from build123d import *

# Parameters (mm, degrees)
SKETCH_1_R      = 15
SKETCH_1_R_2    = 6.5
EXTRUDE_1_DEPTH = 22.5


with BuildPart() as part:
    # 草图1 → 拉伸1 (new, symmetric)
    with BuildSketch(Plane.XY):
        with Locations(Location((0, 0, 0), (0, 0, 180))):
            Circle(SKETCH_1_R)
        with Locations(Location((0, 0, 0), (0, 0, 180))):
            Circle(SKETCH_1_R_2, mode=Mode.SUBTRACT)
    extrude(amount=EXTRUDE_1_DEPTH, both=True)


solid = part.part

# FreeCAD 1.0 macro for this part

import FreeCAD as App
import Part
import Sketcher

V = App.Vector

doc = App.newDocument("Part")
body = doc.addObject("PartDesign::Body", "Body")

# Sketch on XY plane
sketch1 = body.newObject("Sketcher::SketchObject", "Sketch")
sketch1.AttachmentSupport = (doc.getObject("XY_Plane"), [""])
sketch1.MapMode = "FlatFace"
sketch1.addGeometry(Part.Circle(V(0, 0, 0), V(0, 0, 1), 15), False)
sketch1.addGeometry(Part.Circle(V(0, 0, 0), V(0, 0, 1), 6), False)
sketch1.addConstraint(Sketcher.Constraint("Coincident", 0, 3, -1, 1))
sketch1.addConstraint(Sketcher.Constraint("Coincident", 1, 3, -1, 1))
sketch1.addConstraint(Sketcher.Constraint("Diameter", 0, 30.0))
sketch1.addConstraint(Sketcher.Constraint("Diameter", 1, 13.0))
pad1 = body.newObject("PartDesign::Pad", "Pad")
pad1.Profile = sketch1
pad1.Length = 45
pad1.Midplane = True

doc.recompute()
